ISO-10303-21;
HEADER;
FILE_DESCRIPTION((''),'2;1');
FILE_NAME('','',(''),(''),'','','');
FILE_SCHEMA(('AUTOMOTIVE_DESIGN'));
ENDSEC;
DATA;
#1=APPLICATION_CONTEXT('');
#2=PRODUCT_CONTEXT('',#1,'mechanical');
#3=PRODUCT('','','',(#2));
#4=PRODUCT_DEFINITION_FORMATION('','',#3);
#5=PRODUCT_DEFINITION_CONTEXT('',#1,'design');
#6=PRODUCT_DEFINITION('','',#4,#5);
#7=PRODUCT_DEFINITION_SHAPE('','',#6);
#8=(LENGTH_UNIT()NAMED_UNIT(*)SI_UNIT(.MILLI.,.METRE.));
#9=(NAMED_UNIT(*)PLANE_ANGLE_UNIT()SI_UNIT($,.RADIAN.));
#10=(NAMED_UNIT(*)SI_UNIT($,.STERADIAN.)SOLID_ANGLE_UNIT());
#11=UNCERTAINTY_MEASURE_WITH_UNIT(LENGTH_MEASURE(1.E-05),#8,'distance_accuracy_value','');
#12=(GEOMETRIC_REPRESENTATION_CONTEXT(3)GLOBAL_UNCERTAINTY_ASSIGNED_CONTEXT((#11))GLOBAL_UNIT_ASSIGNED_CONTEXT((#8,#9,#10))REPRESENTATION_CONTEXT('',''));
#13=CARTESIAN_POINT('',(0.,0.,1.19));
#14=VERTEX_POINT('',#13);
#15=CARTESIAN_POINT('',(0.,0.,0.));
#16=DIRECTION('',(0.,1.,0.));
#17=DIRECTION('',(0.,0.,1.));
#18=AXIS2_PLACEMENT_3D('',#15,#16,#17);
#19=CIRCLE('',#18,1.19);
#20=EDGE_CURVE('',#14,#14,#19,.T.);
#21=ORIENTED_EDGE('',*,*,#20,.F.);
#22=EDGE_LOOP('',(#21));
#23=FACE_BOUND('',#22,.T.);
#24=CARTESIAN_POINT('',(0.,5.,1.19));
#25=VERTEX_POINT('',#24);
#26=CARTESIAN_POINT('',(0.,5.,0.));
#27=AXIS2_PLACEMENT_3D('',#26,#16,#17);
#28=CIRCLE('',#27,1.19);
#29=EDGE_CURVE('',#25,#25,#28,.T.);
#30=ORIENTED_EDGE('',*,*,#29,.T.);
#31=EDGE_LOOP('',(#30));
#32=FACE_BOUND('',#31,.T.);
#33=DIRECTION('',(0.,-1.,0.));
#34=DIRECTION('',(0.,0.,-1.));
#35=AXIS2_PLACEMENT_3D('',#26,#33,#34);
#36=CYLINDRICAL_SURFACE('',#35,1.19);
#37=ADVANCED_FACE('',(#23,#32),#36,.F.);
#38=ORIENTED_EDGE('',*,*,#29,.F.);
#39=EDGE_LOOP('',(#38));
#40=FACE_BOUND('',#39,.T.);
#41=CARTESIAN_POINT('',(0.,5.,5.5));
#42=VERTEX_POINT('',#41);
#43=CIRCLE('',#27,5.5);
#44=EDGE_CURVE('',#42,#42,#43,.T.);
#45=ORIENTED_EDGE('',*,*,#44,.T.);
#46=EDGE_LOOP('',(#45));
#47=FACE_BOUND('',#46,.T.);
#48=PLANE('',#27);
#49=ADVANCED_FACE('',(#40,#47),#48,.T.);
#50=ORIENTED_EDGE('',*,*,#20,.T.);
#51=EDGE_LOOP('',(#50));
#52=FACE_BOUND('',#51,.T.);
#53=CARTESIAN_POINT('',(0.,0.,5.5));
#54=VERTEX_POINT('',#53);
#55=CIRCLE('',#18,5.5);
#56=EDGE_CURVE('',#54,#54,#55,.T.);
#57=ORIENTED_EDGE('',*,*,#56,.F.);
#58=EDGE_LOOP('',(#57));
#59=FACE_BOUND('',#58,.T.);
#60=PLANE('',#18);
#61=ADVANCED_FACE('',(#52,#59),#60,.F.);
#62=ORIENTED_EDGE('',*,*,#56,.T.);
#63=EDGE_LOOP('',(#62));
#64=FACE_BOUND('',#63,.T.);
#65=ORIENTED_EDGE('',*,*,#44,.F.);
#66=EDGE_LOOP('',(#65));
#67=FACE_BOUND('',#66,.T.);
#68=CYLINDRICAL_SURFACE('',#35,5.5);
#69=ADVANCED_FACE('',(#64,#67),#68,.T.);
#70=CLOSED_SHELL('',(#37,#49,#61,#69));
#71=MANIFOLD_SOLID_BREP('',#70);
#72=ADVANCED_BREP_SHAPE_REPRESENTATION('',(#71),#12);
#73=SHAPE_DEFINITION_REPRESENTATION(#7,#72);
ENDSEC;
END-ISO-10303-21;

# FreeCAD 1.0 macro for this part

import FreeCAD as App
import Part
import Sketcher
Q = App.Units.Quantity

doc = App.newDocument("Part")
body = doc.addObject("PartDesign::Body", "Body")

# Sketch on XZ plane
sketch1 = doc.addObject("Sketcher::SketchObject", "Sketch")
body.addObject(sketch1)
sketch1.AttachmentSupport = (doc.XZ_Plane, [""])
sketch1.MapMode = "FlatFace"
sketch1.addGeometry([
    Part.Circle(App.Vector(0, 0, 0), App.Vector(0, 0, 1), 5.5),
    Part.Circle(App.Vector(0, 0, 0), App.Vector(0, 0, 1), 1.2),
], False)
sketch1.addConstraint([
    Sketcher.Constraint("Coincident", 0, 3, -1, 1),
    Sketcher.Constraint("Coincident", 1, 3, -1, 1),
    Sketcher.Constraint("Diameter", 0, Q("11 mm")),
    Sketcher.Constraint("Diameter", 1, Q("2.38 mm")),
])
pad1 = doc.addObject("PartDesign::Pad", "Pad")
body.addObject(pad1)
pad1.Profile = sketch1
pad1.Length = 5
pad1.Reversed = True

doc.recompute()
